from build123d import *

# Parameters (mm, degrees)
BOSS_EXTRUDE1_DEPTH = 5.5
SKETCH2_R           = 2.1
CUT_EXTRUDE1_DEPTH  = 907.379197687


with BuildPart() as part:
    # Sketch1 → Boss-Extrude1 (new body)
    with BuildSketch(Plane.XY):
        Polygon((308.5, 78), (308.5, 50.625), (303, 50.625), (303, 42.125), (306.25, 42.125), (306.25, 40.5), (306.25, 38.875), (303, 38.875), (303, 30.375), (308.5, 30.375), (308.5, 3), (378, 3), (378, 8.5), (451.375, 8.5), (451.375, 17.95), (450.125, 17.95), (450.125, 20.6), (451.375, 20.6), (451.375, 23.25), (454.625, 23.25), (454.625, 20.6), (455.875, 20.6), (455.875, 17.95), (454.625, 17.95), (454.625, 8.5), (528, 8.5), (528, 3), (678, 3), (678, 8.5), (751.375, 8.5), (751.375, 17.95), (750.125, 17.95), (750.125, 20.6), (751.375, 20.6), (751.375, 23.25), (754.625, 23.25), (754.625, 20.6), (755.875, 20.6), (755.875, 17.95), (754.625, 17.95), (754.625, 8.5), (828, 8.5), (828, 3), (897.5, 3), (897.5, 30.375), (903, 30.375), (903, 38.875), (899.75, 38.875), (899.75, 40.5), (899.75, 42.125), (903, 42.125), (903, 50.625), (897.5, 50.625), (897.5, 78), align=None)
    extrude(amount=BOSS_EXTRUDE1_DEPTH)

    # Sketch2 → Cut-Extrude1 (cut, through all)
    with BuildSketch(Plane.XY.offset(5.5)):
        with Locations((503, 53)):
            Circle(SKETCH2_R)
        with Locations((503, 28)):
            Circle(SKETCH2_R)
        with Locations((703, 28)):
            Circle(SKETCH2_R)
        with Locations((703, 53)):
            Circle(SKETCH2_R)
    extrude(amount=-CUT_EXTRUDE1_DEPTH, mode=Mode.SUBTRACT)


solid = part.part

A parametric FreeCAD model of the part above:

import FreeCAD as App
import Part
import Sketcher
Q = App.Units.Quantity

doc = App.newDocument("Part")
body = doc.addObject("PartDesign::Body", "Body")

sketch1 = body.newObject("Sketcher::SketchObject", "Sketch")
sketch1.AttachmentSupport = (doc.getObject("XY_Plane"), [""])
sketch1.MapMode = "FlatFace"
sketch1.addGeometry(Part.LineSegment(App.Vector(308.5, 78, 0), App.Vector(308.5, 50.6, 0)), False)
sketch1.addGeometry(Part.LineSegment(App.Vector(308.5, 50.6, 0), App.Vector(303, 50.6, 0)), False)
sketch1.addGeometry(Part.LineSegment(App.Vector(303, 50.6, 0), App.Vector(303, 42.1, 0)), False)
sketch1.addGeometry(Part.LineSegment(App.Vector(303, 42.1, 0), App.Vector(306.2, 42.1, 0)), False)
sketch1.addGeometry(Part.LineSegment(App.Vector(306.2, 42.1, 0), App.Vector(306.2, 38.9, 0)), False)
sketch1.addGeometry(Part.LineSegment(App.Vector(306.2, 38.9, 0), App.Vector(303, 38.9, 0)), False)
sketch1.addGeometry(Part.LineSegment(App.Vector(303, 38.9, 0), App.Vector(303, 30.4, 0)), False)
sketch1.addGeometry(Part.LineSegment(App.Vector(303, 30.4, 0), App.Vector(308.5, 30.4, 0)), False)
sketch1.addGeometry(Part.LineSegment(App.Vector(308.5, 30.4, 0), App.Vector(308.5, 3, 0)), False)
sketch1.addGeometry(Part.LineSegment(App.Vector(308.5, 3, 0), App.Vector(378, 3, 0)), False)
sketch1.addGeometry(Part.LineSegment(App.Vector(378, 3, 0), App.Vector(378, 8.5, 0)), False)
sketch1.addGeometry(Part.LineSegment(App.Vector(378, 8.5, 0), App.Vector(451.4, 8.5, 0)), False)
sketch1.addGeometry(Part.LineSegment(App.Vector(451.4, 8.5, 0), App.Vector(451.4, 17.9, 0)), False)
sketch1.addGeometry(Part.LineSegment(App.Vector(451.4, 17.9, 0), App.Vector(450.1, 17.9, 0)), False)
sketch1.addGeometry(Part.LineSegment(App.Vector(450.1, 17.9, 0), App.Vector(450.1, 20.6, 0)), False)
sketch1.addGeometry(Part.LineSegment(App.Vector(450.1, 20.6, 0), App.Vector(451.4, 20.6, 0)), False)
sketch1.addGeometry(Part.LineSegment(App.Vector(451.4, 20.6, 0), App.Vector(451.4, 23.2, 0)), False)
sketch1.addGeometry(Part.LineSegment(App.Vector(451.4, 23.2, 0), App.Vector(454.6, 23.2, 0)), False)
sketch1.addGeometry(Part.LineSegment(App.Vector(454.6, 23.2, 0), App.Vector(454.6, 20.6, 0)), False)
sketch1.addGeometry(Part.LineSegment(App.Vector(454.6, 20.6, 0), App.Vector(455.9, 20.6, 0)), False)
sketch1.addGeometry(Part.LineSegment(App.Vector(455.9, 20.6, 0), App.Vector(455.9, 17.9, 0)), False)
sketch1.addGeometry(Part.LineSegment(App.Vector(455.9, 17.9, 0), App.Vector(454.6, 17.9, 0)), False)
sketch1.addGeometry(Part.LineSegment(App.Vector(454.6, 17.9, 0), App.Vector(454.6, 8.5, 0)), False)
sketch1.addGeometry(Part.LineSegment(App.Vector(454.6, 8.5, 0), App.Vector(528, 8.5, 0)), False)
sketch1.addGeometry(Part.LineSegment(App.Vector(528, 8.5, 0), App.Vector(528, 3, 0)), False)
sketch1.addGeometry(Part.LineSegment(App.Vector(528, 3, 0), App.Vector(678, 3, 0)), False)
sketch1.addGeometry(Part.LineSegment(App.Vector(678, 3, 0), App.Vector(678, 8.5, 0)), False)
sketch1.addGeometry(Part.LineSegment(App.Vector(678, 8.5, 0), App.Vector(751.4, 8.5, 0)), False)
sketch1.addGeometry(Part.LineSegment(App.Vector(751.4, 8.5, 0), App.Vector(751.4, 17.9, 0)), False)
sketch1.addGeometry(Part.LineSegment(App.Vector(751.4, 17.9, 0), App.Vector(750.1, 17.9, 0)), False)
sketch1.addGeometry(Part.LineSegment(App.Vector(750.1, 17.9, 0), App.Vector(750.1, 20.6, 0)), False)
sketch1.addGeometry(Part.LineSegment(App.Vector(750.1, 20.6, 0), App.Vector(751.4, 20.6, 0)), False)
sketch1.addGeometry(Part.LineSegment(App.Vector(751.4, 20.6, 0), App.Vector(751.4, 23.2, 0)), False)
sketch1.addGeometry(Part.LineSegment(App.Vector(751.4, 23.2, 0), App.Vector(754.6, 23.2, 0)), False)
sketch1.addGeometry(Part.LineSegment(App.Vector(754.6, 23.2, 0), App.Vector(754.6, 20.6, 0)), False)
sketch1.addGeometry(Part.LineSegment(App.Vector(754.6, 20.6, 0), App.Vector(755.9, 20.6, 0)), False)
sketch1.addGeometry(Part.LineSegment(App.Vector(755.9, 20.6, 0), App.Vector(755.9, 17.9, 0)), False)
sketch1.addGeometry(Part.LineSegment(App.Vector(755.9, 17.9, 0), App.Vector(754.6, 17.9, 0)), False)
sketch1.addGeometry(Part.LineSegment(App.Vector(754.6, 17.9, 0), App.Vector(754.6, 8.5, 0)), False)
sketch1.addGeometry(Part.LineSegment(App.Vector(754.6, 8.5, 0), App.Vector(828, 8.5, 0)), False)
sketch1.addGeometry(Part.LineSegment(App.Vector(828, 8.5, 0), App.Vector(828, 3, 0)), False)
sketch1.addGeometry(Part.LineSegment(App.Vector(828, 3, 0), App.Vector(897.5, 3, 0)), False)
sketch1.addGeometry(Part.LineSegment(App.Vector(897.5, 3, 0), App.Vector(897.5, 30.4, 0)), False)
sketch1.addGeometry(Part.LineSegment(App.Vector(897.5, 30.4, 0), App.Vector(903, 30.4, 0)), False)
sketch1.addGeometry(Part.LineSegment(App.Vector(903, 30.4, 0), App.Vector(903, 38.9, 0)), False)
sketch1.addGeometry(Part.LineSegment(App.Vector(903, 38.9, 0), App.Vector(899.8, 38.9, 0)), False)
sketch1.addGeometry(Part.LineSegment(App.Vector(899.8, 38.9, 0), App.Vector(899.8, 42.1, 0)), False)
sketch1.addGeometry(Part.LineSegment(App.Vector(899.8, 42.1, 0), App.Vector(903, 42.1, 0)), False)
sketch1.addGeometry(Part.LineSegment(App.Vector(903, 42.1, 0), App.Vector(903, 50.6, 0)), False)
sketch1.addGeometry(Part.LineSegment(App.Vector(903, 50.6, 0), App.Vector(897.5, 50.6, 0)), False)
sketch1.addGeometry(Part.LineSegment(App.Vector(897.5, 50.6, 0), App.Vector(897.5, 78, 0)), False)
sketch1.addGeometry(Part.LineSegment(App.Vector(897.5, 78, 0), App.Vector(308.5, 78, 0)), False)
sketch1.addConstraint(Sketcher.Constraint("Coincident", 0, 2, 1, 1))
sketch1.addConstraint(Sketcher.Constraint("Coincident", 1, 2, 2, 1))
sketch1.addConstraint(Sketcher.Constraint("Coincident", 2, 2, 3, 1))
sketch1.addConstraint(Sketcher.Constraint("Coincident", 3, 2, 4, 1))
sketch1.addConstraint(Sketcher.Constraint("Coincident", 4, 2, 5, 1))
sketch1.addConstraint(Sketcher.Constraint("Coincident", 5, 2, 6, 1))
sketch1.addConstraint(Sketcher.Constraint("Coincident", 6, 2, 7, 1))
sketch1.addConstraint(Sketcher.Constraint("Coincident", 7, 2, 8, 1))
sketch1.addConstraint(Sketcher.Constraint("Coincident", 8, 2, 9, 1))
sketch1.addConstraint(Sketcher.Constraint("Coincident", 9, 2, 10, 1))
sketch1.addConstraint(Sketcher.Constraint("Coincident", 10, 2, 11, 1))
sketch1.addConstraint(Sketcher.Constraint("Coincident", 11, 2, 12, 1))
sketch1.addConstraint(Sketcher.Constraint("Coincident", 12, 2, 13, 1))
sketch1.addConstraint(Sketcher.Constraint("Coincident", 13, 2, 14, 1))
sketch1.addConstraint(Sketcher.Constraint("Coincident", 14, 2, 15, 1))
sketch1.addConstraint(Sketcher.Constraint("Coincident", 15, 2, 16, 1))
sketch1.addConstraint(Sketcher.Constraint("Coincident", 16, 2, 17, 1))
sketch1.addConstraint(Sketcher.Constraint("Coincident", 17, 2, 18, 1))
sketch1.addConstraint(Sketcher.Constraint("Coincident", 18, 2, 19, 1))
sketch1.addConstraint(Sketcher.Constraint("Coincident", 19, 2, 20, 1))
sketch1.addConstraint(Sketcher.Constraint("Coincident", 20, 2, 21, 1))
sketch1.addConstraint(Sketcher.Constraint("Coincident", 21, 2, 22, 1))
sketch1.addConstraint(Sketcher.Constraint("Coincident", 22, 2, 23, 1))
sketch1.addConstraint(Sketcher.Constraint("Coincident", 23, 2, 24, 1))
sketch1.addConstraint(Sketcher.Constraint("Coincident", 24, 2, 25, 1))
sketch1.addConstraint(Sketcher.Constraint("Coincident", 25, 2, 26, 1))
sketch1.addConstraint(Sketcher.Constraint("Coincident", 26, 2, 27, 1))
sketch1.addConstraint(Sketcher.Constraint("Coincident", 27, 2, 28, 1))
sketch1.addConstraint(Sketcher.Constraint("Coincident", 28, 2, 29, 1))
sketch1.addConstraint(Sketcher.Constraint("Coincident", 29, 2, 30, 1))
sketch1.addConstraint(Sketcher.Constraint("Coincident", 30, 2, 31, 1))
sketch1.addConstraint(Sketcher.Constraint("Coincident", 31, 2, 32, 1))
sketch1.addConstraint(Sketcher.Constraint("Coincident", 32, 2, 33, 1))
sketch1.addConstraint(Sketcher.Constraint("Coincident", 33, 2, 34, 1))
sketch1.addConstraint(Sketcher.Constraint("Coincident", 34, 2, 35, 1))
sketch1.addConstraint(Sketcher.Constraint("Coincident", 35, 2, 36, 1))
sketch1.addConstraint(Sketcher.Constraint("Coincident", 36, 2, 37, 1))
sketch1.addConstraint(Sketcher.Constraint("Coincident", 37, 2, 38, 1))
sketch1.addConstraint(Sketcher.Constraint("Coincident", 38, 2, 39, 1))
sketch1.addConstraint(Sketcher.Constraint("Coincident", 39, 2, 40, 1))
sketch1.addConstraint(Sketcher.Constraint("Coincident", 40, 2, 41, 1))
sketch1.addConstraint(Sketcher.Constraint("Coincident", 41, 2, 42, 1))
sketch1.addConstraint(Sketcher.Constraint("Coincident", 42, 2, 43, 1))
sketch1.addConstraint(Sketcher.Constraint("Coincident", 43, 2, 44, 1))
sketch1.addConstraint(Sketcher.Constraint("Coincident", 44, 2, 45, 1))
sketch1.addConstraint(Sketcher.Constraint("Coincident", 45, 2, 46, 1))
sketch1.addConstraint(Sketcher.Constraint("Coincident", 46, 2, 47, 1))
sketch1.addConstraint(Sketcher.Constraint("Coincident", 47, 2, 48, 1))
sketch1.addConstraint(Sketcher.Constraint("Coincident", 48, 2, 49, 1))
sketch1.addConstraint(Sketcher.Constraint("Coincident", 49, 2, 50, 1))
sketch1.addConstraint(Sketcher.Constraint("Coincident", 50, 2, 51, 1))
sketch1.addConstraint(Sketcher.Constraint("Coincident", 51, 2, 0, 1))
sketch1.addConstraint(Sketcher.Constraint("Vertical", 0))
sketch1.addConstraint(Sketcher.Constraint("Horizontal", 1))
sketch1.addConstraint(Sketcher.Constraint("Vertical", 2))
sketch1.addConstraint(Sketcher.Constraint("Horizontal", 3))
sketch1.addConstraint(Sketcher.Constraint("Vertical", 4))
sketch1.addConstraint(Sketcher.Constraint("Horizontal", 5))
sketch1.addConstraint(Sketcher.Constraint("Vertical", 6))
sketch1.addConstraint(Sketcher.Constraint("Horizontal", 7))
sketch1.addConstraint(Sketcher.Constraint("Vertical", 8))
sketch1.addConstraint(Sketcher.Constraint("Horizontal", 9))
sketch1.addConstraint(Sketcher.Constraint("Vertical", 10))
sketch1.addConstraint(Sketcher.Constraint("Horizontal", 11))
sketch1.addConstraint(Sketcher.Constraint("Vertical", 12))
sketch1.addConstraint(Sketcher.Constraint("Horizontal", 13))
sketch1.addConstraint(Sketcher.Constraint("Vertical", 14))
sketch1.addConstraint(Sketcher.Constraint("Horizontal", 15))
sketch1.addConstraint(Sketcher.Constraint("Vertical", 16))
sketch1.addConstraint(Sketcher.Constraint("Horizontal", 17))
sketch1.addConstraint(Sketcher.Constraint("Vertical", 18))
sketch1.addConstraint(Sketcher.Constraint("Horizontal", 19))
sketch1.addConstraint(Sketcher.Constraint("Vertical", 20))
sketch1.addConstraint(Sketcher.Constraint("Horizontal", 21))
sketch1.addConstraint(Sketcher.Constraint("Vertical", 22))
sketch1.addConstraint(Sketcher.Constraint("Horizontal", 23))
sketch1.addConstraint(Sketcher.Constraint("Vertical", 24))
sketch1.addConstraint(Sketcher.Constraint("Horizontal", 25))
sketch1.addConstraint(Sketcher.Constraint("Vertical", 26))
sketch1.addConstraint(Sketcher.Constraint("Horizontal", 27))
sketch1.addConstraint(Sketcher.Constraint("Vertical", 28))
sketch1.addConstraint(Sketcher.Constraint("Horizontal", 29))
sketch1.addConstraint(Sketcher.Constraint("Vertical", 30))
sketch1.addConstraint(Sketcher.Constraint("Horizontal", 31))
sketch1.addConstraint(Sketcher.Constraint("Vertical", 32))
sketch1.addConstraint(Sketcher.Constraint("Horizontal", 33))
sketch1.addConstraint(Sketcher.Constraint("Vertical", 34))
sketch1.addConstraint(Sketcher.Constraint("Horizontal", 35))
sketch1.addConstraint(Sketcher.Constraint("Vertical", 36))
sketch1.addConstraint(Sketcher.Constraint("Horizontal", 37))
sketch1.addConstraint(Sketcher.Constraint("Vertical", 38))
sketch1.addConstraint(Sketcher.Constraint("Horizontal", 39))
sketch1.addConstraint(Sketcher.Constraint("Vertical", 40))
sketch1.addConstraint(Sketcher.Constraint("Horizontal", 41))
sketch1.addConstraint(Sketcher.Constraint("Vertical", 42))
sketch1.addConstraint(Sketcher.Constraint("Horizontal", 43))
sketch1.addConstraint(Sketcher.Constraint("Vertical", 44))
sketch1.addConstraint(Sketcher.Constraint("Horizontal", 45))
sketch1.addConstraint(Sketcher.Constraint("Vertical", 46))
sketch1.addConstraint(Sketcher.Constraint("Horizontal", 47))
sketch1.addConstraint(Sketcher.Constraint("Vertical", 48))
sketch1.addConstraint(Sketcher.Constraint("Horizontal", 49))
sketch1.addConstraint(Sketcher.Constraint("Vertical", 50))
sketch1.addConstraint(Sketcher.Constraint("Horizontal", 51))
sketch1.addConstraint(Sketcher.Constraint("Horizontal", 15, 2, 18, 2))
sketch1.addConstraint(Sketcher.Constraint("Horizontal", 13, 2, 20, 2))
sketch1.addConstraint(Sketcher.Constraint("Horizontal", 11, 2, 22, 2))
sketch1.addConstraint(Sketcher.Constraint("Horizontal", 9, 2, 24, 2))
sketch1.addConstraint(Sketcher.Constraint("Horizontal", 23, 2, 26, 2))
sketch1.addConstraint(Sketcher.Constraint("Horizontal", 21, 2, 28, 2))
sketch1.addConstraint(Sketcher.Constraint("Horizontal", 19, 2, 30, 2))
sketch1.addConstraint(Sketcher.Constraint("Horizontal", 17, 2, 32, 2))
sketch1.addConstraint(Sketcher.Constraint("Horizontal", 31, 2, 34, 2))
sketch1.addConstraint(Sketcher.Constraint("Horizontal", 29, 2, 36, 2))
sketch1.addConstraint(Sketcher.Constraint("Horizontal", 27, 2, 38, 2))
sketch1.addConstraint(Sketcher.Constraint("Horizontal", 25, 2, 40, 2))
sketch1.addConstraint(Sketcher.Constraint("Horizontal", 7, 2, 42, 2))
sketch1.addConstraint(Sketcher.Constraint("Horizontal", 5, 2, 44, 2))
sketch1.addConstraint(Sketcher.Constraint("Horizontal", 3, 2, 46, 2))
sketch1.addConstraint(Sketcher.Constraint("Horizontal", 1, 2, 48, 2))
sketch1.addConstraint(Sketcher.Constraint("Vertical", 2, 2, 5, 2))
sketch1.addConstraint(Sketcher.Constraint("Vertical", 0, 2, 7, 2))
sketch1.addConstraint(Sketcher.Constraint("Vertical", 12, 2, 15, 2))
sketch1.addConstraint(Sketcher.Constraint("Vertical", 18, 2, 21, 2))
sketch1.addConstraint(Sketcher.Constraint("Vertical", 28, 2, 31, 2))
sketch1.addConstraint(Sketcher.Constraint("Vertical", 34, 2, 37, 2))
sketch1.addConstraint(Sketcher.Constraint("Vertical", 44, 2, 47, 2))
sketch1.addConstraint(Sketcher.Constraint("Vertical", 42, 2, 49, 2))
sketch1.addConstraint(Sketcher.Constraint("Equal", 5, 17))
sketch1.addConstraint(Sketcher.Constraint("Equal", 15, 19))
sketch1.addConstraint(Sketcher.Constraint("Equal", 11, 23))
sketch1.addConstraint(Sketcher.Constraint("Equal", 23, 27))
sketch1.addConstraint(Sketcher.Constraint("Equal", 21, 29))
sketch1.addConstraint(Sketcher.Constraint("Equal", 17, 33))
sketch1.addConstraint(Sketcher.Constraint("Equal", 31, 35))
sketch1.addConstraint(Sketcher.Constraint("Equal", 27, 39))
sketch1.addConstraint(Sketcher.Constraint("Equal", 9, 41))
sketch1.addConstraint(Sketcher.Constraint("Equal", 7, 43))
sketch1.addConstraint(Sketcher.Constraint("Equal", 33, 45))
sketch1.addConstraint(Sketcher.Constraint("Equal", 47, 4))
sketch1.addConstraint(Sketcher.Constraint("Equal", 2, 6))
sketch1.addConstraint(Sketcher.Constraint("Equal", 0, 8))
sketch1.addConstraint(Sketcher.Constraint("Equal", 49, 10))
sketch1.addConstraint(Sketcher.Constraint("Equal", 14, 16))
sketch1.addConstraint(Sketcher.Constraint("DistanceX", 25, 1, 25, 2, Q("150 mm")))
sketch1.addConstraint(Sketcher.Constraint("DistanceX", 51, 2, 51, 1, Q("589 mm")))
sketch1.addConstraint(Sketcher.Constraint("DistanceX", 1, 2, 1, 1, Q("5.5 mm")))
sketch1.addConstraint(Sketcher.Constraint("DistanceX", 9, 1, 9, 2, Q("69.5 mm")))
sketch1.addConstraint(Sketcher.Constraint("DistanceY", 2, 2, 2, 1, Q("8.5 mm")))
sketch1.addConstraint(Sketcher.Constraint("DistanceX", -1, 1, 1, 2, Q("303 mm")))
sketch1.addConstraint(Sketcher.Constraint("DistanceY", -1, 1, 8, 2, Q("3 mm")))
sketch1.addConstraint(Sketcher.Constraint("DistanceY", -1, 1, 50, 2, Q("78 mm")))
sketch1.addConstraint(Sketcher.Constraint("DistanceX", 3, 1, 3, 2, Q("3.25 mm")))
sketch1.addConstraint(Sketcher.Constraint("DistanceX", 13, 2, 13, 1, Q("1.25 mm")))
sketch1.addConstraint(Sketcher.Constraint("DistanceY", 12, 1, 12, 2, Q("9.45 mm")))
sketch1.addConstraint(Sketcher.Constraint("DistanceY", 14, 1, 14, 2, Q("2.65 mm")))
pad1 = body.newObject("PartDesign::Pad", "Pad")
pad1.Profile = sketch1
pad1.Length = 5.5

sketch2 = body.newObject("Sketcher::SketchObject", "Sketch001")
sketch2.AttachmentSupport = (doc.getObject("XY_Plane"), [""])
sketch2.MapMode = "FlatFace"
sketch2.AttachmentOffset = App.Placement(App.Vector(0, 0, 5.5), App.Rotation())
sketch2.addGeometry(Part.Circle(App.Vector(503, 53, 0), App.Vector(0, 0, 1), 2.1), False)
sketch2.addGeometry(Part.Circle(App.Vector(503, 28, 0), App.Vector(0, 0, 1), 2.1), False)
sketch2.addGeometry(Part.Circle(App.Vector(703, 28, 0), App.Vector(0, 0, 1), 2.1), False)
sketch2.addGeometry(Part.Circle(App.Vector(703, 53, 0), App.Vector(0, 0, 1), 2.1), False)
sketch2.addConstraint(Sketcher.Constraint("Equal", 0, 1))
sketch2.addConstraint(Sketcher.Constraint("Equal", 1, 2))
sketch2.addConstraint(Sketcher.Constraint("Equal", 2, 3))
sketch2.addConstraint(Sketcher.Constraint("Horizontal", 1, 3, 2, 3))
sketch2.addConstraint(Sketcher.Constraint("Horizontal", 0, 3, 3, 3))
sketch2.addConstraint(Sketcher.Constraint("Vertical", 0, 3, 1, 3))
sketch2.addConstraint(Sketcher.Constraint("Vertical", 2, 3, 3, 3))
sketch2.addConstraint(Sketcher.Constraint("Diameter", 0, Q("4.2 mm")))
sketch2.addConstraint(Sketcher.Constraint("DistanceX", -1, 1, 0, 3, Q("503 mm")))
sketch2.addConstraint(Sketcher.Constraint("DistanceY", -1, 1, 0, 3, Q("53 mm")))
sketch2.addConstraint(Sketcher.Constraint("DistanceY", -1, 1, 1, 3, Q("28 mm")))
sketch2.addConstraint(Sketcher.Constraint("DistanceX", -1, 1, 2, 3, Q("703 mm")))
pocket1 = body.newObject("PartDesign::Pocket", "Pocket")
pocket1.Profile = sketch2
pocket1.Type = "ThroughAll"

doc.recompute()
